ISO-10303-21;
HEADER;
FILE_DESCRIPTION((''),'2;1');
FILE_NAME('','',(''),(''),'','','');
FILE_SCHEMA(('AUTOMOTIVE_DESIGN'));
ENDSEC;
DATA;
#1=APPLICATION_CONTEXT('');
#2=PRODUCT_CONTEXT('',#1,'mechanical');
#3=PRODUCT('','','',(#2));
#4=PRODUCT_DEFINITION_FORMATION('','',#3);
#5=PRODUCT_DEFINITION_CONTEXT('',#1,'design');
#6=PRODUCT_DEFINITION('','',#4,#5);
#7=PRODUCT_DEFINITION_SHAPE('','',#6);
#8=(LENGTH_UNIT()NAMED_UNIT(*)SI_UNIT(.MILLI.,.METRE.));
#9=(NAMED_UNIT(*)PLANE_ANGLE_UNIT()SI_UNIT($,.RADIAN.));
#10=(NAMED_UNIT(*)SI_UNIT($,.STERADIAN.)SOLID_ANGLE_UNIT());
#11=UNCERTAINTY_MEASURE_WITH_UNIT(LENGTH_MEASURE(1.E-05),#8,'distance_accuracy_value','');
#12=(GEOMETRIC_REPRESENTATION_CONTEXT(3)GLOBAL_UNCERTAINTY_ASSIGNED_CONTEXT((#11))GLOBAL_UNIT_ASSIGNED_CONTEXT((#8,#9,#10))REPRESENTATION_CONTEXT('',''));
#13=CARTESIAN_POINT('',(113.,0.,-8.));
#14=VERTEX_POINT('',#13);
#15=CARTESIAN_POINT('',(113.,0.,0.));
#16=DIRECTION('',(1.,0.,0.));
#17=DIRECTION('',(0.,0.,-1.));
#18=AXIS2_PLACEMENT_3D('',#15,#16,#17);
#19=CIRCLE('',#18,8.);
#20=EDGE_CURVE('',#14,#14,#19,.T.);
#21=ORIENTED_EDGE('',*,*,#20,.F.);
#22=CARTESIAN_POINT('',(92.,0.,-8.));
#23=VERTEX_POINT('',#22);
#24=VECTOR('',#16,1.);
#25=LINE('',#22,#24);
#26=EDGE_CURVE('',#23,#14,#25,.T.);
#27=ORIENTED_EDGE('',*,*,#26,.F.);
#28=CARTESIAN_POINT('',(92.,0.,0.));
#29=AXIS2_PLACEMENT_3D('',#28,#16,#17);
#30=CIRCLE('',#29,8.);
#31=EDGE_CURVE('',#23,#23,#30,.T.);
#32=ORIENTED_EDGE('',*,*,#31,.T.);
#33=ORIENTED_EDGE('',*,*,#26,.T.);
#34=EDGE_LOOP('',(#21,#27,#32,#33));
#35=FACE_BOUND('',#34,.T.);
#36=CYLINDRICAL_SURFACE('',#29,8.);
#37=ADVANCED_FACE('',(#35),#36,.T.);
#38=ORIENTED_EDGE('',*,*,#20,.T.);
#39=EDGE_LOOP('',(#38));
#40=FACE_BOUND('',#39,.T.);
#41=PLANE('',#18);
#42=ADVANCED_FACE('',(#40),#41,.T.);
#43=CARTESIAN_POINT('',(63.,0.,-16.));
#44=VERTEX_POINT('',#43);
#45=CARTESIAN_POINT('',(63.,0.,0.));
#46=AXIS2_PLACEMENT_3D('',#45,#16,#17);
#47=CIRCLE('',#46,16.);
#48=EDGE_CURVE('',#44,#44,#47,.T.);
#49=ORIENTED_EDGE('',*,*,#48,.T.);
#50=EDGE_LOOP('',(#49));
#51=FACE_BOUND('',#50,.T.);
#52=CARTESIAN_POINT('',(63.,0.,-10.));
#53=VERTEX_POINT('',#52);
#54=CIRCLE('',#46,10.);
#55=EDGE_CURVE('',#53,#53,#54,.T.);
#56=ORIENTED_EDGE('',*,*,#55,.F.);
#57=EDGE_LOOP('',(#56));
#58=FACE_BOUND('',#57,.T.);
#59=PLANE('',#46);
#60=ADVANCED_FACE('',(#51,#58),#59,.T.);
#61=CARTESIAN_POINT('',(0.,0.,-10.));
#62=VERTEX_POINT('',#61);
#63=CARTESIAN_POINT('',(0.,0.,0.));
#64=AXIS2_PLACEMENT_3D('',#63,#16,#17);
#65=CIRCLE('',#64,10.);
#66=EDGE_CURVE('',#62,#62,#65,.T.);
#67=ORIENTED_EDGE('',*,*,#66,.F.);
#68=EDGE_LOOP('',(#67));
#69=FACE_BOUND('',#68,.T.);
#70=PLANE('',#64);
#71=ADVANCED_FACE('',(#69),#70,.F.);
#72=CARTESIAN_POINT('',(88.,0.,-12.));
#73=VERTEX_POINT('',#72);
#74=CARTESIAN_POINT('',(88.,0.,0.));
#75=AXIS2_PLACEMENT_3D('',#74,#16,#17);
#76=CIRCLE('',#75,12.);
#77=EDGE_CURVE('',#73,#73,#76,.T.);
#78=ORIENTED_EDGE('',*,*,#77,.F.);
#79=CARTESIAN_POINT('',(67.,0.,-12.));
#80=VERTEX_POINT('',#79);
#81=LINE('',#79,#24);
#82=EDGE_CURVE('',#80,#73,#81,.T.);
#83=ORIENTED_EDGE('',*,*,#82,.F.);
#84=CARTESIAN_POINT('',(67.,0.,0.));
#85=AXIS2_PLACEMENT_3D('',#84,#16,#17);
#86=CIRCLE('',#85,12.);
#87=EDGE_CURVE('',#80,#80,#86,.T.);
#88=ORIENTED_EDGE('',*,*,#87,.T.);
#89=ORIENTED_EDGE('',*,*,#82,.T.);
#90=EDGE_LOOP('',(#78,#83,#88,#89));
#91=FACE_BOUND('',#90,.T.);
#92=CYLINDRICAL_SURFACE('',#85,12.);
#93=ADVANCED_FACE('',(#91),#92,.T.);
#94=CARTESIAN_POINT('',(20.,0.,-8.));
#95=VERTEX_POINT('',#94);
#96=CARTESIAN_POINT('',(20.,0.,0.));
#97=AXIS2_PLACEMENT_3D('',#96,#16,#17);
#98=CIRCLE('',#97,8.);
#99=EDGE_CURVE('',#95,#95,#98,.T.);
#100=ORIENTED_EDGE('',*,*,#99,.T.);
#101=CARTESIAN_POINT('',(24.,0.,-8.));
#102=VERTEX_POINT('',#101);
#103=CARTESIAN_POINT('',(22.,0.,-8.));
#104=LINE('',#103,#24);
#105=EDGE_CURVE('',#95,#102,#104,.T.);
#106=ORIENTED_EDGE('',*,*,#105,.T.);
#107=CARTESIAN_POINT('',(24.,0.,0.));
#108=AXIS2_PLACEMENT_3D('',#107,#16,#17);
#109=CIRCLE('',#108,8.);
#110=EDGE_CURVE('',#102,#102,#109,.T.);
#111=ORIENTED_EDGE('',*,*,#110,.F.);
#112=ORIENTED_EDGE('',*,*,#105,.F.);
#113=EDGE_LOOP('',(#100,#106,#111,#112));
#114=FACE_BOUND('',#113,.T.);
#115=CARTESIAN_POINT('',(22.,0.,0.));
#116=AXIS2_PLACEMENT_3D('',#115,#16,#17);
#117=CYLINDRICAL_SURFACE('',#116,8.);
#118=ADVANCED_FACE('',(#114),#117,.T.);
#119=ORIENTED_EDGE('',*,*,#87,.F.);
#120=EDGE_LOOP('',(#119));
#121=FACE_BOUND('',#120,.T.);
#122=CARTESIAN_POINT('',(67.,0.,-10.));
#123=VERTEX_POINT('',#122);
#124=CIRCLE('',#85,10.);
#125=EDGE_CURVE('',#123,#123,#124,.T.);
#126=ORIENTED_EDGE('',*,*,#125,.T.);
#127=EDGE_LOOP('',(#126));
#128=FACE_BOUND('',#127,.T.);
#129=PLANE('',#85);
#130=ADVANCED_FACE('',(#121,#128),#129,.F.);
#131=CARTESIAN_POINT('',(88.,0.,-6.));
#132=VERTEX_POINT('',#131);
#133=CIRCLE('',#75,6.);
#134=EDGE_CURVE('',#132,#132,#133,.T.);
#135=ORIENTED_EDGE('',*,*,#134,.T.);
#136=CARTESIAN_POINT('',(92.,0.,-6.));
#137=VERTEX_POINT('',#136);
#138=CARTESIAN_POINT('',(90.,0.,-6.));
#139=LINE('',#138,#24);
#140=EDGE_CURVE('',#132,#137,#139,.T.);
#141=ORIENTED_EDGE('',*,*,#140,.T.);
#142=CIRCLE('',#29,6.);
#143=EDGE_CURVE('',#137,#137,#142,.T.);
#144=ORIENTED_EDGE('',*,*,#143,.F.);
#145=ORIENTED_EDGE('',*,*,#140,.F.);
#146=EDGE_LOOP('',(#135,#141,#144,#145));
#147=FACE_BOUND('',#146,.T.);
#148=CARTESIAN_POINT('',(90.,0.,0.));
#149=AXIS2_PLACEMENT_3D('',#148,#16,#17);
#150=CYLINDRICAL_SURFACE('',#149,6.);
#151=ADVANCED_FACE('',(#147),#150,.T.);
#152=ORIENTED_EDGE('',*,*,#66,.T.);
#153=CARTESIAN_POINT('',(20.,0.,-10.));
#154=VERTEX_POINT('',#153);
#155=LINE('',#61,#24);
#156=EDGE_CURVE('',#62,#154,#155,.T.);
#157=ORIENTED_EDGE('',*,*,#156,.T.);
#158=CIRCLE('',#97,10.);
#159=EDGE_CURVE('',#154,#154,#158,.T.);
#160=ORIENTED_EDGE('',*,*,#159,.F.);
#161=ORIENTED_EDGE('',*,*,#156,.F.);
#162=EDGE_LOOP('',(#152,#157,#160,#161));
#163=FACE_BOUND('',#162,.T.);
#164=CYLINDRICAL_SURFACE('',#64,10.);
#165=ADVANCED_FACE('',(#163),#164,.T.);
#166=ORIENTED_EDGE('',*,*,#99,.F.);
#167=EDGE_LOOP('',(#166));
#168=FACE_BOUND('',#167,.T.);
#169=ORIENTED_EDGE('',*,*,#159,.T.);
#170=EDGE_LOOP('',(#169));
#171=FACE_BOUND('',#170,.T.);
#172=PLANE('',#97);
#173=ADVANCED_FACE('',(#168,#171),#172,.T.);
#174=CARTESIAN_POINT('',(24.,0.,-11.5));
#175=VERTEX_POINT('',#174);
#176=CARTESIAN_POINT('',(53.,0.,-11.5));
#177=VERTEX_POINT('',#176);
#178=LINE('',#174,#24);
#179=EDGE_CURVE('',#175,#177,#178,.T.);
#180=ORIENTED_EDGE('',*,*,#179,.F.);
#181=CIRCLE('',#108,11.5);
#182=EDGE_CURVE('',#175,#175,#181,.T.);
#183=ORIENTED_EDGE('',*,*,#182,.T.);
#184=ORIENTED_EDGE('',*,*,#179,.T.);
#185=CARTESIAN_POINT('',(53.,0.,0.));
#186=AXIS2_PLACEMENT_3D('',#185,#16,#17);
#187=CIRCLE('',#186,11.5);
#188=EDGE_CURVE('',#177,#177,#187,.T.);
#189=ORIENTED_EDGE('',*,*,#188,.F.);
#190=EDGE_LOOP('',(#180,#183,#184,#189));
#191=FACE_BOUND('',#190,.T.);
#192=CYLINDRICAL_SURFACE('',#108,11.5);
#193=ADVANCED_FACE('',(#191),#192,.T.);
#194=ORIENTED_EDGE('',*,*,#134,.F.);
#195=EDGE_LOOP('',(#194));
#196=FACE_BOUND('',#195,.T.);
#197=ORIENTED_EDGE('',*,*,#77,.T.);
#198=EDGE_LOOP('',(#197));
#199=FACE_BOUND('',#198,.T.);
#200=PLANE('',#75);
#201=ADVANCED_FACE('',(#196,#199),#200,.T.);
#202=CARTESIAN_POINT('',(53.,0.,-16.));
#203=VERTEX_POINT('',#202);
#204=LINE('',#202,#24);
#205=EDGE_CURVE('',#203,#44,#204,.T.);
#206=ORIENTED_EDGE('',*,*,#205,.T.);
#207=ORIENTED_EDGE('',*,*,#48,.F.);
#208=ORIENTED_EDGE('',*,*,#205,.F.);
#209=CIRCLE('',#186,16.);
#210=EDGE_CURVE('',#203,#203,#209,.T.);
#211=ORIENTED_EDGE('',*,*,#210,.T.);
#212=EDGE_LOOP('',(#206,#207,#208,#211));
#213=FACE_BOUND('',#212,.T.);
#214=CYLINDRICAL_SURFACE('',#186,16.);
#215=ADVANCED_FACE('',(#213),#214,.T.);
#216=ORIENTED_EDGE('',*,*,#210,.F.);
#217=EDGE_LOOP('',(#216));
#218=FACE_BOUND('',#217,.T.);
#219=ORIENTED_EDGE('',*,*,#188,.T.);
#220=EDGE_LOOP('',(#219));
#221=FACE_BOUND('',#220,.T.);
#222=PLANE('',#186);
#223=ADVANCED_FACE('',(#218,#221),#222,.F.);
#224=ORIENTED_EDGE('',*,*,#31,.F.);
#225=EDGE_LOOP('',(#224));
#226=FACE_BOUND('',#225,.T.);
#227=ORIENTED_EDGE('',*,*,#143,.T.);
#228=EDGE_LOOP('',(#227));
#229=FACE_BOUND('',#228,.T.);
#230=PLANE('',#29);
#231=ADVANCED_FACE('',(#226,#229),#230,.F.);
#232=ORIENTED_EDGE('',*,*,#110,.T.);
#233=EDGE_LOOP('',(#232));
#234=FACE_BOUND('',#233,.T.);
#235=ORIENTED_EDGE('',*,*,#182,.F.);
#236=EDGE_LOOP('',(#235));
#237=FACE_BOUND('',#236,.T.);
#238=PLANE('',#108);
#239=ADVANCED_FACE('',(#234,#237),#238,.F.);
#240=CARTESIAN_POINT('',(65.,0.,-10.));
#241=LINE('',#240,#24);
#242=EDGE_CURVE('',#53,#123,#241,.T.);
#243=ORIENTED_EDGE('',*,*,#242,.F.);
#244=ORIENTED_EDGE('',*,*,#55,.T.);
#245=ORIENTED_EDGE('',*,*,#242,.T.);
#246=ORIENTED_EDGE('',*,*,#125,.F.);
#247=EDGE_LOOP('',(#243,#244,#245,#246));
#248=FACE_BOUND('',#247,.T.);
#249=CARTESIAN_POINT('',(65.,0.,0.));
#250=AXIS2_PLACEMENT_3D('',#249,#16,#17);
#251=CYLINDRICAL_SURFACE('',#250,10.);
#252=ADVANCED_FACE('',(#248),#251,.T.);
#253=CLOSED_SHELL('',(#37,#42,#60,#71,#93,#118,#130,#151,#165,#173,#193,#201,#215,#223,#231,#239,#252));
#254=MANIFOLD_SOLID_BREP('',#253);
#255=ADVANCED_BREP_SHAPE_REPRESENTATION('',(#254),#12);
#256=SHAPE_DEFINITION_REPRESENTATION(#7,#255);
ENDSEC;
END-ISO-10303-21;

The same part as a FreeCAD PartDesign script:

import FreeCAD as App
import Part
import Sketcher
from FreeCAD import Vector
Q = App.Units.Quantity

doc = App.newDocument("Part")
body = doc.addObject("PartDesign::Body", "Body")

sketch1 = body.newObject("Sketcher::SketchObject", "Sketch")
sketch1.AttachmentSupport = (doc.getObject("XZ_Plane"), [""])
sketch1.MapMode = "FlatFace"
sketch1.addGeometry(Part.LineSegment(Vector(0, 0, 0), Vector(0, -10, 0)), False)
sketch1.addGeometry(Part.LineSegment(Vector(0, -10, 0), Vector(20, -10, 0)), False)
sketch1.addGeometry(Part.LineSegment(Vector(20, -10, 0), Vector(20, -8, 0)), False)
sketch1.addGeometry(Part.LineSegment(Vector(20, -8, 0), Vector(24, -8, 0)), False)
sketch1.addGeometry(Part.LineSegment(Vector(24, -8, 0), Vector(24, -11.5, 0)), False)
sketch1.addGeometry(Part.LineSegment(Vector(24, -11.5, 0), Vector(53, -11.5, 0)), False)
sketch1.addGeometry(Part.LineSegment(Vector(53, -11.5, 0), Vector(53, -16, 0)), False)
sketch1.addGeometry(Part.LineSegment(Vector(53, -16, 0), Vector(63, -16, 0)), False)
sketch1.addGeometry(Part.LineSegment(Vector(63, -16, 0), Vector(63, -10, 0)), False)
sketch1.addGeometry(Part.LineSegment(Vector(63, -10, 0), Vector(67, -10, 0)), False)
sketch1.addGeometry(Part.LineSegment(Vector(67, -10, 0), Vector(67, -12, 0)), False)
sketch1.addGeometry(Part.LineSegment(Vector(67, -12, 0), Vector(88, -12, 0)), False)
sketch1.addGeometry(Part.LineSegment(Vector(88, -12, 0), Vector(88, -6, 0)), False)
sketch1.addGeometry(Part.LineSegment(Vector(88, -6, 0), Vector(92, -6, 0)), False)
sketch1.addGeometry(Part.LineSegment(Vector(92, -6, 0), Vector(92, -8, 0)), False)
sketch1.addGeometry(Part.LineSegment(Vector(92, -8, 0), Vector(113, -8, 0)), False)
sketch1.addGeometry(Part.LineSegment(Vector(113, -8, 0), Vector(113, 0, 0)), False)
sketch1.addGeometry(Part.LineSegment(Vector(113, 0, 0), Vector(0, 0, 0)), False)
sketch1.addConstraint(Sketcher.Constraint("Coincident", 0, 2, 1, 1))
sketch1.addConstraint(Sketcher.Constraint("Coincident", 1, 2, 2, 1))
sketch1.addConstraint(Sketcher.Constraint("Coincident", 2, 2, 3, 1))
sketch1.addConstraint(Sketcher.Constraint("Coincident", 3, 2, 4, 1))
sketch1.addConstraint(Sketcher.Constraint("Coincident", 4, 2, 5, 1))
sketch1.addConstraint(Sketcher.Constraint("Coincident", 5, 2, 6, 1))
sketch1.addConstraint(Sketcher.Constraint("Coincident", 6, 2, 7, 1))
sketch1.addConstraint(Sketcher.Constraint("Coincident", 7, 2, 8, 1))
sketch1.addConstraint(Sketcher.Constraint("Coincident", 8, 2, 9, 1))
sketch1.addConstraint(Sketcher.Constraint("Coincident", 9, 2, 10, 1))
sketch1.addConstraint(Sketcher.Constraint("Coincident", 10, 2, 11, 1))
sketch1.addConstraint(Sketcher.Constraint("Coincident", 11, 2, 12, 1))
sketch1.addConstraint(Sketcher.Constraint("Coincident", 12, 2, 13, 1))
sketch1.addConstraint(Sketcher.Constraint("Coincident", 13, 2, 14, 1))
sketch1.addConstraint(Sketcher.Constraint("Coincident", 14, 2, 15, 1))
sketch1.addConstraint(Sketcher.Constraint("Coincident", 15, 2, 16, 1))
sketch1.addConstraint(Sketcher.Constraint("Coincident", 16, 2, 17, 1))
sketch1.addConstraint(Sketcher.Constraint("Coincident", 17, 2, 0, 1))
sketch1.addConstraint(Sketcher.Constraint("Vertical", 0))
sketch1.addConstraint(Sketcher.Constraint("Horizontal", 1))
sketch1.addConstraint(Sketcher.Constraint("Vertical", 2))
sketch1.addConstraint(Sketcher.Constraint("Horizontal", 3))
sketch1.addConstraint(Sketcher.Constraint("Vertical", 4))
sketch1.addConstraint(Sketcher.Constraint("Horizontal", 5))
sketch1.addConstraint(Sketcher.Constraint("Vertical", 6))
sketch1.addConstraint(Sketcher.Constraint("Horizontal", 7))
sketch1.addConstraint(Sketcher.Constraint("Vertical", 8))
sketch1.addConstraint(Sketcher.Constraint("Horizontal", 9))
sketch1.addConstraint(Sketcher.Constraint("Vertical", 10))
sketch1.addConstraint(Sketcher.Constraint("Horizontal", 11))
sketch1.addConstraint(Sketcher.Constraint("Vertical", 12))
sketch1.addConstraint(Sketcher.Constraint("Horizontal", 13))
sketch1.addConstraint(Sketcher.Constraint("Vertical", 14))
sketch1.addConstraint(Sketcher.Constraint("Horizontal", 15))
sketch1.addConstraint(Sketcher.Constraint("Vertical", 16))
sketch1.addConstraint(Sketcher.Constraint("Horizontal", 17))
sketch1.addConstraint(Sketcher.Constraint("Coincident", 17, 2, -1, 1))
sketch1.addConstraint(Sketcher.Constraint("Horizontal", 1, 2, 8, 2))
sketch1.addConstraint(Sketcher.Constraint("Horizontal", 3, 2, 14, 2))
sketch1.addConstraint(Sketcher.Constraint("Equal", 3, 9))
sketch1.addConstraint(Sketcher.Constraint("Equal", 9, 13))
sketch1.addConstraint(Sketcher.Constraint("Equal", 11, 15))
sketch1.addConstraint(Sketcher.Constraint("Equal", 7, 0))
sketch1.addConstraint(Sketcher.Constraint("Equal", 2, 10))
sketch1.addConstraint(Sketcher.Constraint("Equal", 8, 12))
sketch1.addConstraint(Sketcher.Constraint("Equal", 10, 14))
sketch1.addConstraint(Sketcher.Constraint("DistanceX", 1, 1, 1, 2, Q("20 mm")))
sketch1.addConstraint(Sketcher.Constraint("DistanceX", 3, 1, 3, 2, Q("4 mm")))
sketch1.addConstraint(Sketcher.Constraint("DistanceX", 5, 1, 5, 2, Q("29 mm")))
sketch1.addConstraint(Sketcher.Constraint("DistanceX", 7, 1, 7, 2, Q("10 mm")))
sketch1.addConstraint(Sketcher.Constraint("DistanceX", 11, 1, 11, 2, Q("21 mm")))
sketch1.addConstraint(Sketcher.Constraint("DistanceY", 2, 1, 2, 2, Q("2 mm")))
sketch1.addConstraint(Sketcher.Constraint("DistanceY", 4, 2, 4, 1, Q("3.5 mm")))
revolution = body.newObject("PartDesign::Revolution", "Revolution")
revolution.Profile = sketch1
revolution.ReferenceAxis = (sketch1, ["H_Axis"])
revolution.Angle = 360

doc.recompute()
